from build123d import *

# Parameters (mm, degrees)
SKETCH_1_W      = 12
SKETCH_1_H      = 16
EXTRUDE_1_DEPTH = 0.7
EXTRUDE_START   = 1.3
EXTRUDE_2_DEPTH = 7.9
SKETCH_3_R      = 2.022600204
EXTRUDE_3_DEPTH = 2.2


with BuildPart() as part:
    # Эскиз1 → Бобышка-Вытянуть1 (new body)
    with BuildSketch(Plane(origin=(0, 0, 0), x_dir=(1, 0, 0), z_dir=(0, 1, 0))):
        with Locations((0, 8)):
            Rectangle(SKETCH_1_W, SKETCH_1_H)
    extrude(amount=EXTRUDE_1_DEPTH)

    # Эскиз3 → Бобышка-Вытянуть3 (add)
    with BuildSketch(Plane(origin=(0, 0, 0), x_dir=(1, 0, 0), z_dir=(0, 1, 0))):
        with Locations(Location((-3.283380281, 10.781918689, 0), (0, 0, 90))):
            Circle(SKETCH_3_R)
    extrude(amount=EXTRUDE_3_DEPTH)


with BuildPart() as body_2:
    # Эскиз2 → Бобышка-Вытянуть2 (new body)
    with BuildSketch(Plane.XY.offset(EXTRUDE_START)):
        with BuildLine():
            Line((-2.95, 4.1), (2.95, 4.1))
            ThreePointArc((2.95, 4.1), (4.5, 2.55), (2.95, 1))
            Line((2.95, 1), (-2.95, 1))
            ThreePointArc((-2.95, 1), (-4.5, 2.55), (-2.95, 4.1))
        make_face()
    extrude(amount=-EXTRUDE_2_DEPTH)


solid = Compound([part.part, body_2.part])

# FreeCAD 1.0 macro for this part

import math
import FreeCAD as App
import Part
import Sketcher

doc = App.newDocument("Part")
params = doc.addObject("Spreadsheet::Sheet", "Params")
for row, (alias, value) in enumerate([
    ("sketch1_width", "12 mm"),
    ("sketch1_height", "16 mm"),
    ("pad1_length", "0.7 mm"),
    ("pad2_length", "2.2 mm"),
    ("sketch3_radius", "1.55 mm"),
    ("sketch3_width", "5.9 mm"),
    ("pad3_length", "7.9 mm"),
], start=1):
    params.set(f"A{row}", alias)
    params.set(f"B{row}", "=" + value)
    params.setAlias(f"B{row}", alias)

body = doc.addObject("PartDesign::Body", "Body")

sketch1 = body.newObject("Sketcher::SketchObject", "Sketch")
sketch1.AttachmentSupport = (doc.getObject("XZ_Plane"), [""])
sketch1.MapMode = "FlatFace"
sketch1.addGeometry([
    Part.LineSegment(App.Vector(-6, -16, 0), App.Vector(-6, 0, 0)),
    Part.LineSegment(App.Vector(-6, 0, 0), App.Vector(6, 0, 0)),
    Part.LineSegment(App.Vector(6, 0, 0), App.Vector(6, -16, 0)),
    Part.LineSegment(App.Vector(6, -16, 0), App.Vector(-6, -16, 0)),
], False)
sketch1.addConstraint([
    Sketcher.Constraint("Coincident", 0, 2, 1, 1),
    Sketcher.Constraint("Coincident", 1, 2, 2, 1),
    Sketcher.Constraint("Coincident", 2, 2, 3, 1),
    Sketcher.Constraint("Coincident", 3, 2, 0, 1),
    Sketcher.Constraint("Vertical", 0),
    Sketcher.Constraint("Horizontal", 1),
    Sketcher.Constraint("Vertical", 2),
    Sketcher.Constraint("Horizontal", 3),
    Sketcher.Constraint("Symmetric", 0, 2, 1, 2, -1, 1),
    Sketcher.Constraint("DistanceX", 1, 1, 1, 2, 12.0),
    Sketcher.Constraint("DistanceY", 0, 1, 0, 2, 16.0),
])
sketch1.setExpression("Constraints[9]", "Params.sketch1_width")
sketch1.setExpression("Constraints[10]", "Params.sketch1_height")
pad1 = body.newObject("PartDesign::Pad", "Pad")
pad1.Profile = sketch1
pad1.setExpression("Length", "Params.pad1_length")
pad1.Reversed = True

sketch2 = body.newObject("Sketcher::SketchObject", "Sketch001")
sketch2.AttachmentSupport = (doc.getObject("XZ_Plane"), [""])
sketch2.MapMode = "FlatFace"
sketch2.addGeometry(Part.Circle(App.Vector(-3.3, -10.8, 0), App.Vector(0, 0, 1), 2), False)
sketch2.addConstraint([
    Sketcher.Constraint("Diameter", 0, 4.0452),
    Sketcher.Constraint("DistanceX", 0, 3, -1, 1, 3.28338),
    Sketcher.Constraint("DistanceY", 0, 3, -1, 1, 10.781919),
])
pad2 = body.newObject("PartDesign::Pad", "Pad001")
pad2.Profile = sketch2
pad2.setExpression("Length", "Params.pad2_length")
pad2.Reversed = True
body2 = doc.addObject("PartDesign::Body", "Body001")

sketch3 = body2.newObject("Sketcher::SketchObject", "Sketch002")
sketch3.AttachmentSupport = (doc.getObject("XY_Plane001"), [""])
sketch3.MapMode = "FlatFace"
sketch3.AttachmentOffset = App.Placement(App.Vector(0, 0, 1.3), App.Rotation())
sketch3.addGeometry([
    Part.LineSegment(App.Vector(3, 4.1, 0), App.Vector(-3, 4.1, 0)),
    Part.ArcOfCircle(Part.Circle(App.Vector(-3, 2.5, 0), App.Vector(0, 0, 1), 1.6), math.radians(90), math.radians(270)),
    Part.LineSegment(App.Vector(-3, 1, 0), App.Vector(3, 1, 0)),
    Part.ArcOfCircle(Part.Circle(App.Vector(3, 2.5, 0), App.Vector(0, 0, 1), 1.6), math.radians(-90), math.radians(90)),
], False)
sketch3.addConstraint([
    Sketcher.Constraint("Tangent", 0, 2, 1, 1),
    Sketcher.Constraint("Tangent", 1, 2, 2, 1),
    Sketcher.Constraint("Tangent", 2, 2, 3, 1),
    Sketcher.Constraint("Tangent", 3, 2, 0, 1),
    Sketcher.Constraint("Horizontal", 0),
    Sketcher.Constraint("Horizontal", 2),
    Sketcher.Constraint("Radius", 1, 1.55),
    Sketcher.Constraint("DistanceX", 0, 2, 0, 1, 5.9),
    Sketcher.Constraint("DistanceY", -1, 1, 1, 2, 1.0),
    Sketcher.Constraint("DistanceX", 1, 3, -1, 1, 2.95),
])
sketch3.setExpression("Constraints[6]", "Params.sketch3_radius")
sketch3.setExpression("Constraints[7]", "Params.sketch3_width")
pad3 = body2.newObject("PartDesign::Pad", "Pad002")
pad3.Profile = sketch3
pad3.setExpression("Length", "Params.pad3_length")
pad3.Reversed = True

doc.recompute()
